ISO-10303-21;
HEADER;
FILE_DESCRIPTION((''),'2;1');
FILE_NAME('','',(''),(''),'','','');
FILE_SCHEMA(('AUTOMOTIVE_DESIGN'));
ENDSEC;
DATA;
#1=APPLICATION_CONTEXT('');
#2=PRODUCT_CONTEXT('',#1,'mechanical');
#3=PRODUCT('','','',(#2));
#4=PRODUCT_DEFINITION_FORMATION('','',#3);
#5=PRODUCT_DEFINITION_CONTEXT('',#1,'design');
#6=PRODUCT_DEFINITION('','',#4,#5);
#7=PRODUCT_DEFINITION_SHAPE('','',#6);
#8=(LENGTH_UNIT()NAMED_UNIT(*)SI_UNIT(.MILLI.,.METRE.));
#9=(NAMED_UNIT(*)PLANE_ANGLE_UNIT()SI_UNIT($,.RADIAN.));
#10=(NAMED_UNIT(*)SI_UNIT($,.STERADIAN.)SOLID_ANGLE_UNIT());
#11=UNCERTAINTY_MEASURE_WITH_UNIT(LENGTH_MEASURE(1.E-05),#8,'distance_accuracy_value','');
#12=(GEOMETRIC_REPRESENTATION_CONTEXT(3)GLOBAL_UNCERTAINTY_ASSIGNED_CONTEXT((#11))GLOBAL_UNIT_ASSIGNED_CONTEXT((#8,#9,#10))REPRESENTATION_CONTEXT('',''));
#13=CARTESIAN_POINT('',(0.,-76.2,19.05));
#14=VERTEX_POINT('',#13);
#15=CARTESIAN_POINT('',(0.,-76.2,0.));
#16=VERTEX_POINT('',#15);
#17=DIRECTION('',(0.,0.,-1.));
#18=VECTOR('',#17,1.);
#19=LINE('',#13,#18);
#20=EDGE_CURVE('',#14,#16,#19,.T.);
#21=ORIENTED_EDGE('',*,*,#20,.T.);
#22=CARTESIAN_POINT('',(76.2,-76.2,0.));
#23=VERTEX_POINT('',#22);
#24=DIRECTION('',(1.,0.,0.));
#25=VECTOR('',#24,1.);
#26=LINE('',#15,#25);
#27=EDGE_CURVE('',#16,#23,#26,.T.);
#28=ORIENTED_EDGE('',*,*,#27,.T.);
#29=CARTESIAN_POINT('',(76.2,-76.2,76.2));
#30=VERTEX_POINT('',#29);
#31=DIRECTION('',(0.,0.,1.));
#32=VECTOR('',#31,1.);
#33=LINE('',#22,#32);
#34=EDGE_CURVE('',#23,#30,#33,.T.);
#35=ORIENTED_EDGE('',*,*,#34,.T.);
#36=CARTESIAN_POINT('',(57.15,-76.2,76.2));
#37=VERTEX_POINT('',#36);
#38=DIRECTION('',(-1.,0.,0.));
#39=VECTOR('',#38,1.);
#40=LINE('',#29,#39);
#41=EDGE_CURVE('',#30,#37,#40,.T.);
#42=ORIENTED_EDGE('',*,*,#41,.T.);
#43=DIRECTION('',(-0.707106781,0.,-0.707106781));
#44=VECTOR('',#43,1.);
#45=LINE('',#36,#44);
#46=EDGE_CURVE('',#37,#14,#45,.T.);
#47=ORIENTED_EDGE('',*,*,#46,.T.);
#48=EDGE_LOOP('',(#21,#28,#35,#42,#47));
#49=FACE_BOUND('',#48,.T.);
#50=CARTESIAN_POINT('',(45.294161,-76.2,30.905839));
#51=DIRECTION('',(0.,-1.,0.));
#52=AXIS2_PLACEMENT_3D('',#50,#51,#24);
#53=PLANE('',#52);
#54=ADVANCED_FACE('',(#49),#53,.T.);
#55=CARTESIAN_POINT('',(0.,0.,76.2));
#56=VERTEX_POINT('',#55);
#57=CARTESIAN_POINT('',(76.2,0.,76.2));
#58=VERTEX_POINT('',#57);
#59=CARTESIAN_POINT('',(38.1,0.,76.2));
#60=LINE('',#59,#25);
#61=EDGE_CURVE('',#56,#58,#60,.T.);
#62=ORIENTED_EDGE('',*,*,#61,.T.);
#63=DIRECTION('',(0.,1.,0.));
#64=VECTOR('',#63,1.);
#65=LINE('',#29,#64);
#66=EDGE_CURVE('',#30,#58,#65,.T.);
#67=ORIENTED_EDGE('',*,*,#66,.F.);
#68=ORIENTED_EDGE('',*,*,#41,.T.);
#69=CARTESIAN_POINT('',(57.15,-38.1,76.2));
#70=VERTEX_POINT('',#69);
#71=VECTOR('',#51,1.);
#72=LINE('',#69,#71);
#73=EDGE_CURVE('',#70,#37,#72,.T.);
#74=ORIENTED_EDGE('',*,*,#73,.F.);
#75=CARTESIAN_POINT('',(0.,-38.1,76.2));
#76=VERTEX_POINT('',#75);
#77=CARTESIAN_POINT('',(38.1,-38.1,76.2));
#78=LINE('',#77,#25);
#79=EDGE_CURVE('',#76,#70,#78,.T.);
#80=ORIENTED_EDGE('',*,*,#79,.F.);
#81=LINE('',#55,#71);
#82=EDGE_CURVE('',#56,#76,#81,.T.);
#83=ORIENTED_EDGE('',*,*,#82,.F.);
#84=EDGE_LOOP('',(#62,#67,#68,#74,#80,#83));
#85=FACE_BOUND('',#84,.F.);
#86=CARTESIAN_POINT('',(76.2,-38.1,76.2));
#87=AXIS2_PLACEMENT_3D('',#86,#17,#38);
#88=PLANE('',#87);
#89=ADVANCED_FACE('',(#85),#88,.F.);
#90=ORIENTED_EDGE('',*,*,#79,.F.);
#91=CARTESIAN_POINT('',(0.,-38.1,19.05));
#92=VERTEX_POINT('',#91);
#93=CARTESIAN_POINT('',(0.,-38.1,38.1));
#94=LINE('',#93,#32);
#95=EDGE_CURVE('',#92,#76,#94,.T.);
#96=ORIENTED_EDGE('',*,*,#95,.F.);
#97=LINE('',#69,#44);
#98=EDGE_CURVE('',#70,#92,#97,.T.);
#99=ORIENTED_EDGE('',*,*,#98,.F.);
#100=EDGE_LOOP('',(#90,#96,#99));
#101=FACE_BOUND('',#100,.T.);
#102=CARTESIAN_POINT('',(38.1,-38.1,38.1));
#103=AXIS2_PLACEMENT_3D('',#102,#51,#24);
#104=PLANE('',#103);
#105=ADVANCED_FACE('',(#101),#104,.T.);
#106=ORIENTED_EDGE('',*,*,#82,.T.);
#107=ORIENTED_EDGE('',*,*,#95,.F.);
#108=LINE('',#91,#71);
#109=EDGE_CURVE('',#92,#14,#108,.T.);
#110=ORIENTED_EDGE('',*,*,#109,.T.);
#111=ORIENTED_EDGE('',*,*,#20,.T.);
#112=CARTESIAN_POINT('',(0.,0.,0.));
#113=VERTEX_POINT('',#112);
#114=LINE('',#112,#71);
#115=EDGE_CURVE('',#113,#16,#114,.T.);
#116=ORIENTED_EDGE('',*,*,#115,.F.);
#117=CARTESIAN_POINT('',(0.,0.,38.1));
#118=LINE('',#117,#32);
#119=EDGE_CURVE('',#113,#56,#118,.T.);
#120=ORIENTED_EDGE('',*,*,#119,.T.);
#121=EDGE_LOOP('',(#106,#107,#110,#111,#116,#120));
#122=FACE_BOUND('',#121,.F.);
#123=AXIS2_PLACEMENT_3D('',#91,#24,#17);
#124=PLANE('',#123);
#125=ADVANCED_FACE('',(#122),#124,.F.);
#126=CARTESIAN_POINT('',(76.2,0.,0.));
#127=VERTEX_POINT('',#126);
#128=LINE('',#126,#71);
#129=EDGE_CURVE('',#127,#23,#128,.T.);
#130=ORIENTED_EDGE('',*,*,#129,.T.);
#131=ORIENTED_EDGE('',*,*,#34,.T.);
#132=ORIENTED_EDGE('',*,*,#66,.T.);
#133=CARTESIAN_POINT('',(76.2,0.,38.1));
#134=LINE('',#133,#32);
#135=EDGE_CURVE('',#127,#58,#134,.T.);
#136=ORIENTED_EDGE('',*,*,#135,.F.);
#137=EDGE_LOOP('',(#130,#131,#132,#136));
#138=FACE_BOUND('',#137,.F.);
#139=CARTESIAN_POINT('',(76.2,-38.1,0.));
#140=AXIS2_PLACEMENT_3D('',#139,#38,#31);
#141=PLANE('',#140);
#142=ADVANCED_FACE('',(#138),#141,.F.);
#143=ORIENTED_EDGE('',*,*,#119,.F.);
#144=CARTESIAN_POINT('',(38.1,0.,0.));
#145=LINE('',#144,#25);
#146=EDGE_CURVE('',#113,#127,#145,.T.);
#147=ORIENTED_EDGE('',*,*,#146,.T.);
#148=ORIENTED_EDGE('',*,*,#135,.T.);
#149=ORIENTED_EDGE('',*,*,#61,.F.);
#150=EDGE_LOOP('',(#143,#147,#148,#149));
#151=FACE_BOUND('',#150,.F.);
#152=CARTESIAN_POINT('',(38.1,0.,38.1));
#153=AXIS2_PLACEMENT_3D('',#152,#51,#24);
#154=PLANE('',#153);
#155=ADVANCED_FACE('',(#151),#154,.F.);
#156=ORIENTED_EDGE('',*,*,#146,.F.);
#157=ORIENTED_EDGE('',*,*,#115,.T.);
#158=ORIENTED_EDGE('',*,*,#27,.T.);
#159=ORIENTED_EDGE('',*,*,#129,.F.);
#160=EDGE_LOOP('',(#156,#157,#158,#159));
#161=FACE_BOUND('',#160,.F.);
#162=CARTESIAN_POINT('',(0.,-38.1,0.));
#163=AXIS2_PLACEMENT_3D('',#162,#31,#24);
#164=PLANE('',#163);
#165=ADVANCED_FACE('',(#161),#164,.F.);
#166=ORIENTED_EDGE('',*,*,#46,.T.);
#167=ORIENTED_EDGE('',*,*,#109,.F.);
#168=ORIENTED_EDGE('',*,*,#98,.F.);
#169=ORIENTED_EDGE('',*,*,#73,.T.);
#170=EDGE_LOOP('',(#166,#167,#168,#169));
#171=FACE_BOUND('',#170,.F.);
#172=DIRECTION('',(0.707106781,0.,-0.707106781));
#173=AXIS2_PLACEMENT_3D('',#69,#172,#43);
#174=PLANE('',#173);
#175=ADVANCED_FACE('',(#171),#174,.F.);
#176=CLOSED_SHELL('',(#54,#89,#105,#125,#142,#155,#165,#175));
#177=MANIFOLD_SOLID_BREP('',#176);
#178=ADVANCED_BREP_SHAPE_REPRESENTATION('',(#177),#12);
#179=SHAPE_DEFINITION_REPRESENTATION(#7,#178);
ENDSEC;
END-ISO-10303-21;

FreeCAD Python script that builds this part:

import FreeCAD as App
import Part
import Sketcher
Q = App.Units.Quantity

doc = App.newDocument("Part")
body = doc.addObject("PartDesign::Body", "Body")

# Sketch on XZ plane
sketch1 = body.newObject("Sketcher::SketchObject", "Sketch")
sketch1.AttachmentSupport = (doc.getObject("XZ_Plane"), [""])
sketch1.MapMode = "FlatFace"
sketch1.addGeometry([
    Part.LineSegment(App.Vector(0, 76, 0), App.Vector(0, 0, 0)),
    Part.LineSegment(App.Vector(0, 0, 0), App.Vector(76, 0, 0)),
    Part.LineSegment(App.Vector(76, 0, 0), App.Vector(76, 76, 0)),
    Part.LineSegment(App.Vector(76, 76, 0), App.Vector(0, 76, 0)),
], False)
sketch1.addConstraint([
    Sketcher.Constraint("Coincident", 0, 2, 1, 1),
    Sketcher.Constraint("Coincident", 1, 2, 2, 1),
    Sketcher.Constraint("Coincident", 2, 2, 3, 1),
    Sketcher.Constraint("Coincident", 3, 2, 0, 1),
    Sketcher.Constraint("Vertical", 0),
    Sketcher.Constraint("Horizontal", 1),
    Sketcher.Constraint("Vertical", 2),
    Sketcher.Constraint("Horizontal", 3),
    Sketcher.Constraint("Coincident", 0, 2, -1, 1),
    Sketcher.Constraint("Equal", 3, 0),
    Sketcher.Constraint("DistanceX", 1, 1, 1, 2, Q("3 in")),
])
pad1 = body.newObject("PartDesign::Pad", "Pad")
pad1.Profile = sketch1
pad1.Length = Q("1.5 in")

# Sketch on XZ plane
sketch2 = body.newObject("Sketcher::SketchObject", "Sketch001")
sketch2.AttachmentSupport = (doc.getObject("XZ_Plane"), [""])
sketch2.MapMode = "FlatFace"
sketch2.AttachmentOffset = App.Placement(App.Vector(0, 0, 1.5 * 25.4), App.Rotation())
sketch2.addGeometry([
    Part.LineSegment(App.Vector(0, 19, 0), App.Vector(0, 0, 0)),  # 0
    Part.LineSegment(App.Vector(0, 0, 0), App.Vector(76, 0, 0)),  # 1
    Part.LineSegment(App.Vector(76, 0, 0), App.Vector(76, 76, 0)),  # 2
    Part.LineSegment(App.Vector(76, 76, 0), App.Vector(57, 76, 0)),  # 3
    Part.LineSegment(App.Vector(57, 76, 0), App.Vector(0, 19, 0)),  # 4
], False)
sketch2.addConstraint([
    Sketcher.Constraint("Coincident", 0, 2, 1, 1),
    Sketcher.Constraint("Coincident", 1, 2, 2, 1),
    Sketcher.Constraint("Coincident", 2, 2, 3, 1),
    Sketcher.Constraint("Coincident", 3, 2, 4, 1),
    Sketcher.Constraint("Coincident", 4, 2, 0, 1),
    Sketcher.Constraint("Vertical", 0),
    Sketcher.Constraint("Horizontal", 1),
    Sketcher.Constraint("Vertical", 2),
    Sketcher.Constraint("Horizontal", 3),
    Sketcher.Constraint("Coincident", 0, 2, -1, 1),
    Sketcher.Constraint("Equal", 3, 0),
    Sketcher.Constraint("Equal", 1, 2),
    Sketcher.Constraint("DistanceX", 1, 1, 1, 2, Q("3 in")),
    Sketcher.Constraint("DistanceX", 3, 2, 3, 1, Q("0.75 in")),
])
pad2 = body.newObject("PartDesign::Pad", "Pad001")
pad2.Profile = sketch2
pad2.Length = Q("1.5 in")

doc.recompute()
